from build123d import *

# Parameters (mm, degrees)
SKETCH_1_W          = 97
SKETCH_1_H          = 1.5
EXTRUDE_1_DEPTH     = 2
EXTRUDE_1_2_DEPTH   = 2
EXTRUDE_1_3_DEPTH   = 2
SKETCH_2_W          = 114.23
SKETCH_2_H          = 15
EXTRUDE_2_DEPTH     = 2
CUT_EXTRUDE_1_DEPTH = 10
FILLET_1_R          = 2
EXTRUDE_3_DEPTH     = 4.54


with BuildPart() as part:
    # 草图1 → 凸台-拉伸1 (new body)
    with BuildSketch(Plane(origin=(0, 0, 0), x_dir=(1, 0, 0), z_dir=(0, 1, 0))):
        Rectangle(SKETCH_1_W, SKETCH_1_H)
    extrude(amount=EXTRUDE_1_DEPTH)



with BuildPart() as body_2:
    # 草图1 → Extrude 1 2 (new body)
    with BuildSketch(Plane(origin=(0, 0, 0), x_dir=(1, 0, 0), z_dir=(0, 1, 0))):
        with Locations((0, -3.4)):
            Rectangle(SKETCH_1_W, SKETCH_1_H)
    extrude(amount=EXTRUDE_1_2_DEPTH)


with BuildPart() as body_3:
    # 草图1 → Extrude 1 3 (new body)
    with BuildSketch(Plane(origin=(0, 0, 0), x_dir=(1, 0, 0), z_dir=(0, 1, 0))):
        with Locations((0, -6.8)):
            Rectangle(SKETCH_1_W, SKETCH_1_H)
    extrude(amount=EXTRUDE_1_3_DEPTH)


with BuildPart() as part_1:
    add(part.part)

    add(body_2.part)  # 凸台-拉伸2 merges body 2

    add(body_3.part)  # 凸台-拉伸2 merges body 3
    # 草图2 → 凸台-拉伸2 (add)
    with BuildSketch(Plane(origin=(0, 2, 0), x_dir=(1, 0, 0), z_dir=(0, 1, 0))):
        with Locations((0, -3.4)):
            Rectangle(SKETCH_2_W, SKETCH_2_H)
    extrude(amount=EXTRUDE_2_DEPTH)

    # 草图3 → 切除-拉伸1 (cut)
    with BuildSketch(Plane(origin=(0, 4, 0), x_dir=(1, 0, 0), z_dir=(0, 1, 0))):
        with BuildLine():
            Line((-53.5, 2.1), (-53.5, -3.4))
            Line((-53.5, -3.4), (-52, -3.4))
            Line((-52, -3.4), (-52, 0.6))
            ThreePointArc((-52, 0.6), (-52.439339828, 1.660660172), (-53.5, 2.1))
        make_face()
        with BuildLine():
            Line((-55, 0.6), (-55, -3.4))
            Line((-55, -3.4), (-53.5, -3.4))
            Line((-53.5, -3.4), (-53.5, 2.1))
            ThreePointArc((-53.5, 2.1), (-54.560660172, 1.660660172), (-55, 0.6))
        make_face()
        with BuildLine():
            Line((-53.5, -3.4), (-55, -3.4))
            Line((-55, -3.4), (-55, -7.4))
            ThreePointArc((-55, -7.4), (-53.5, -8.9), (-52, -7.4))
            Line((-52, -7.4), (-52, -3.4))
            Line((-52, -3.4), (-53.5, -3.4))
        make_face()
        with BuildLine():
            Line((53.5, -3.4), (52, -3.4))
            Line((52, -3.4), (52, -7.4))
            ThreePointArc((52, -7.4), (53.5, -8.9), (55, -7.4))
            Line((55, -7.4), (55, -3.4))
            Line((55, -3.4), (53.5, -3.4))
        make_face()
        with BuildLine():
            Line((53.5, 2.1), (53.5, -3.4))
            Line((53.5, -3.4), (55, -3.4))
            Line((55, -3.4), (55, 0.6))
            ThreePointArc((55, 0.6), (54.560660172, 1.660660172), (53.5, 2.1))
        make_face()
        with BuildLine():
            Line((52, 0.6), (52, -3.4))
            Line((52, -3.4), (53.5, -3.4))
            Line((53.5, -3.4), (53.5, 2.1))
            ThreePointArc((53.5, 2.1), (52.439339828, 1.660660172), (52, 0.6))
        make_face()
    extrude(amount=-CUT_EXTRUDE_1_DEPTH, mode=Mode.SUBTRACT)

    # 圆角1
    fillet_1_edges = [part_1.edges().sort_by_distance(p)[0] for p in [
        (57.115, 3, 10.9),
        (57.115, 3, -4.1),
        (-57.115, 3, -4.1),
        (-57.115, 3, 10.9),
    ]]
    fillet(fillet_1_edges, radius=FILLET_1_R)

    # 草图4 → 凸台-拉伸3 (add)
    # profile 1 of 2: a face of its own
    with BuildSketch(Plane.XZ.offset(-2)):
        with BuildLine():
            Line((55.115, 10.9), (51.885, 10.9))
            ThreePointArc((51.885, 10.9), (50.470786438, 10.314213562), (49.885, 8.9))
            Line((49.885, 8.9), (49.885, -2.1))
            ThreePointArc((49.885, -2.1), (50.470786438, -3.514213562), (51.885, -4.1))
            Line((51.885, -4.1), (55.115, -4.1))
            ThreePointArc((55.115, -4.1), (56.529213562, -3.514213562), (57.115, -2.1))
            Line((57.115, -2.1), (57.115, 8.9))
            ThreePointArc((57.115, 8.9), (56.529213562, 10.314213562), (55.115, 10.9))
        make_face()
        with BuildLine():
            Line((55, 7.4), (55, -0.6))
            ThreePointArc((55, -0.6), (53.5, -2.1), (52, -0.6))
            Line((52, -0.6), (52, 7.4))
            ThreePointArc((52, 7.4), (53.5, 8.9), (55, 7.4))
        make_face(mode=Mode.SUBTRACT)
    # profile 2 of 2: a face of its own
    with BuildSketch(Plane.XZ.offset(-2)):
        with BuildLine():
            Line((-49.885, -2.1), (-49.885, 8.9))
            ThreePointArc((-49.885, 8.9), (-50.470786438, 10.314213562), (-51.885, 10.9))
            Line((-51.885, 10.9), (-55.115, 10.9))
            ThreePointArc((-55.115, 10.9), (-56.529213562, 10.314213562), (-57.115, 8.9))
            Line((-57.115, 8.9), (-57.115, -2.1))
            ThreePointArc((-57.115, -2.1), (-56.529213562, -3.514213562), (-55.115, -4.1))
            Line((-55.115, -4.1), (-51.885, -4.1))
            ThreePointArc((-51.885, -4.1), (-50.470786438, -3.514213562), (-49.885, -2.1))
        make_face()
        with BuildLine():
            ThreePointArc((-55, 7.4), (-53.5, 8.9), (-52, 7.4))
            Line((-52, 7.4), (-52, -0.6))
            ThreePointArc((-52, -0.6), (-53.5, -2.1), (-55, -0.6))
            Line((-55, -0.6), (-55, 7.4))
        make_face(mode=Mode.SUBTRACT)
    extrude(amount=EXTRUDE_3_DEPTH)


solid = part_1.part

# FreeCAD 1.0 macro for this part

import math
import FreeCAD as App
import Part
import Sketcher


def edges_at(feature, points):
    """Names of the edges that pass closest to the given points."""
    edges = feature.Shape.Edges
    near = lambda p: min(range(len(edges)), key=lambda i: edges[i].distToShape(Part.Vertex(*p))[0])
    return sorted({f"Edge{near(p) + 1}" for p in points})


def add_polygon(sketch, points):
    """Adds a closed chain of lines whose ends are joined by coincident constraints."""
    first, n = sketch.GeometryCount, len(points)
    for a, b in zip(points, points[1:] + points[:1]):
        sketch.addGeometry(Part.LineSegment(App.Vector(*a, 0), App.Vector(*b, 0)), False)
    for i in range(n):
        sketch.addConstraint(Sketcher.Constraint("Coincident", first + i, 2, first + (i + 1) % n, 1))

doc = App.newDocument("Part")
params = doc.addObject("Spreadsheet::Sheet", "Params")
for row, (alias, value) in enumerate([
    ("sketch1_width", "97 mm"),
    ("sketch1_height", "1.5 mm"),
    ("pad1_length", "2 mm"),
    ("sketch2_width", "97 mm"),
    ("sketch2_height", "1.5 mm"),
    ("pad2_length", "2 mm"),
    ("sketch3_width", "97 mm"),
    ("sketch3_height", "1.5 mm"),
    ("pad3_length", "2 mm"),
    ("sketch4_height", "15 mm"),
    ("sketch4_width", "114.23 mm"),
    ("pad4_length", "2 mm"),
    ("sketch5_radius", "1.5 mm"),
    ("sketch5_height", "8 mm"),
    ("pocket1_length", "10 mm"),
    ("fillet_radius", "2 mm"),
    ("sketch6_radius", "2 mm"),
    ("sketch6_radius2", "1.5 mm"),
    ("sketch6_height", "11 mm"),
    ("sketch6_height2", "8 mm"),
    ("sketch6_width", "3.23 mm"),
    ("pad5_length", "4.54 mm"),
], start=1):
    params.set(f"A{row}", alias)
    params.set(f"B{row}", "=" + value)
    params.setAlias(f"B{row}", alias)

body = doc.addObject("PartDesign::Body", "Body")

# Sketch on XZ plane
sketch1 = doc.addObject("Sketcher::SketchObject", "Sketch")
body.addObject(sketch1)
sketch1.AttachmentSupport = (doc.XZ_Plane, [""])
sketch1.MapMode = "FlatFace"
add_polygon(sketch1, [(-48.5, -0.8), (-48.5, 0.8), (48.5, 0.8), (48.5, -0.8)])  # lines 0-3
sketch1.addConstraint([
    Sketcher.Constraint("Vertical", 0),
    Sketcher.Constraint("Horizontal", 1),
    Sketcher.Constraint("Vertical", 2),
    Sketcher.Constraint("Horizontal", 3),
    Sketcher.Constraint("Symmetric", 0, 2, 2, 2, -1, 1),
    Sketcher.Constraint("DistanceX", 1, 1, 1, 2, 97.0),
    Sketcher.Constraint("DistanceY", 0, 1, 0, 2, 1.5),
])
sketch1.setExpression("Constraints[9]", "Params.sketch1_width")
sketch1.setExpression("Constraints[10]", "Params.sketch1_height")
pad1 = doc.addObject("PartDesign::Pad", "Pad")
body.addObject(pad1)
pad1.Profile = sketch1
pad1.setExpression("Length", "Params.pad1_length")
pad1.Reversed = True
body2 = doc.addObject("PartDesign::Body", "Body001")

# Sketch on XZ plane
sketch2 = doc.addObject("Sketcher::SketchObject", "Sketch001")
body2.addObject(sketch2)
sketch2.AttachmentSupport = (doc.getObject("XZ_Plane001"), [""])
sketch2.MapMode = "FlatFace"
add_polygon(sketch2, [(-48.5, 2.6), (-48.5, 4.2), (48.5, 4.2), (48.5, 2.6)])  # lines 0-3
sketch2.addConstraint([
    Sketcher.Constraint("Vertical", 0),
    Sketcher.Constraint("Horizontal", 1),
    Sketcher.Constraint("Vertical", 2),
    Sketcher.Constraint("Horizontal", 3),
    Sketcher.Constraint("DistanceX", 1, 1, 1, 2, 97.0),
    Sketcher.Constraint("DistanceY", 0, 1, 0, 2, 1.5),
    Sketcher.Constraint("DistanceX", 0, 2, -1, 1, 48.5),
    Sketcher.Constraint("DistanceY", -1, 1, 0, 2, 4.15),
])
sketch2.setExpression("Constraints[8]", "Params.sketch2_width")
sketch2.setExpression("Constraints[9]", "Params.sketch2_height")
pad2 = doc.addObject("PartDesign::Pad", "Pad001")
body2.addObject(pad2)
pad2.Profile = sketch2
pad2.setExpression("Length", "Params.pad2_length")
pad2.Reversed = True
body3 = doc.addObject("PartDesign::Body", "Body002")

# Sketch on XZ plane
sketch3 = doc.addObject("Sketcher::SketchObject", "Sketch002")
body3.addObject(sketch3)
sketch3.AttachmentSupport = (doc.getObject("XZ_Plane002"), [""])
sketch3.MapMode = "FlatFace"
add_polygon(sketch3, [(-48.5, 6), (-48.5, 7.5), (48.5, 7.5), (48.5, 6)])  # lines 0-3
sketch3.addConstraint([
    Sketcher.Constraint("Vertical", 0),
    Sketcher.Constraint("Horizontal", 1),
    Sketcher.Constraint("Vertical", 2),
    Sketcher.Constraint("Horizontal", 3),
    Sketcher.Constraint("DistanceX", 1, 1, 1, 2, 97.0),
    Sketcher.Constraint("DistanceY", 0, 1, 0, 2, 1.5),
    Sketcher.Constraint("DistanceX", 0, 2, -1, 1, 48.5),
    Sketcher.Constraint("DistanceY", -1, 1, 0, 2, 7.55),
])
sketch3.setExpression("Constraints[8]", "Params.sketch3_width")
sketch3.setExpression("Constraints[9]", "Params.sketch3_height")
pad3 = doc.addObject("PartDesign::Pad", "Pad002")
body3.addObject(pad3)
pad3.Profile = sketch3
pad3.setExpression("Length", "Params.pad3_length")
pad3.Reversed = True
body.AllowCompound = True
doc.recompute()

boolean = doc.addObject("PartDesign::Boolean", "Boolean")
body.addObject(boolean)
boolean.Type = "Fuse"
boolean.addObjects([body2])
doc.recompute()

boolean2 = doc.addObject("PartDesign::Boolean", "Boolean001")
body.addObject(boolean2)
boolean2.Type = "Fuse"
boolean2.addObjects([body3])

# Sketch on XZ plane
sketch4 = doc.addObject("Sketcher::SketchObject", "Sketch003")
body.addObject(sketch4)
sketch4.AttachmentSupport = (doc.XZ_Plane, [""])
sketch4.MapMode = "FlatFace"
sketch4.AttachmentOffset = App.Placement(App.Vector(0, 0, -2), App.Rotation())
add_polygon(sketch4, [(-57, -4), (-57, 11), (57, 11), (57, -4)])  # lines 0-3
sketch4.addConstraint([
    Sketcher.Constraint("Vertical", 0),
    Sketcher.Constraint("Horizontal", 1),
    Sketcher.Constraint("Vertical", 2),
    Sketcher.Constraint("Horizontal", 3),
    Sketcher.Constraint("DistanceY", 0, 1, 0, 2, 15.0),
    Sketcher.Constraint("DistanceX", 1, 1, 1, 2, 114.23),
    Sketcher.Constraint("DistanceY", -1, 1, 0, 2, 10.9),
    Sketcher.Constraint("DistanceX", 0, 2, -1, 1, 57.115),
])
sketch4.setExpression("Constraints[8]", "Params.sketch4_height")
sketch4.setExpression("Constraints[9]", "Params.sketch4_width")
pad4 = doc.addObject("PartDesign::Pad", "Pad003")
body.addObject(pad4)
pad4.Profile = sketch4
pad4.setExpression("Length", "Params.pad4_length")
pad4.Reversed = True

# Sketch on XZ plane
sketch5 = doc.addObject("Sketcher::SketchObject", "Sketch004")
body.addObject(sketch5)
sketch5.AttachmentSupport = (doc.XZ_Plane, [""])
sketch5.MapMode = "FlatFace"
sketch5.AttachmentOffset = App.Placement(App.Vector(0, 0, -4), App.Rotation())
sketch5.addGeometry([
    Part.ArcOfCircle(Part.Circle(App.Vector(-53.5, -0.6, 0), App.Vector(0, 0, 1), 1.5), math.radians(-90), math.radians(0)),  # 0
    Part.ArcOfCircle(Part.Circle(App.Vector(-53.5, -0.6, 0), App.Vector(0, 0, 1), 1.5), math.radians(180), math.radians(270)),  # 1
    Part.LineSegment(App.Vector(-55, -0.6, 0), App.Vector(-55, 7.4, 0)),  # 2
    Part.ArcOfCircle(Part.Circle(App.Vector(-53.5, 7.4, 0), App.Vector(0, 0, 1), 1.5), math.radians(0), math.radians(180)),  # 3
    Part.LineSegment(App.Vector(-52, 7.4, 0), App.Vector(-52, -0.6, 0)),  # 4
    Part.ArcOfCircle(Part.Circle(App.Vector(53.5, 7.4, 0), App.Vector(0, 0, 1), 1.5), math.radians(0), math.radians(180)),  # 5
    Part.LineSegment(App.Vector(55, 7.4, 0), App.Vector(55, -0.6, 0)),  # 6
    Part.ArcOfCircle(Part.Circle(App.Vector(53.5, -0.6, 0), App.Vector(0, 0, 1), 1.5), math.radians(-90), math.radians(0)),  # 7
    Part.ArcOfCircle(Part.Circle(App.Vector(53.5, -0.6, 0), App.Vector(0, 0, 1), 1.5), math.radians(180), math.radians(270)),  # 8
    Part.LineSegment(App.Vector(52, -0.6, 0), App.Vector(52, 7.4, 0)),  # 9
], False)
sketch5.addConstraint([
    Sketcher.Constraint("Tangent", 0, 1, 1, 2),
    Sketcher.Constraint("Tangent", 1, 1, 2, 1),
    Sketcher.Constraint("Tangent", 2, 2, 3, 2),
    Sketcher.Constraint("Tangent", 3, 1, 4, 1),
    Sketcher.Constraint("Tangent", 4, 2, 0, 2),
    Sketcher.Constraint("Tangent", 5, 1, 6, 1),
    Sketcher.Constraint("Tangent", 6, 2, 7, 2),
    Sketcher.Constraint("Tangent", 7, 1, 8, 2),
    Sketcher.Constraint("Tangent", 8, 1, 9, 1),
    Sketcher.Constraint("Tangent", 9, 2, 5, 2),
    Sketcher.Constraint("Vertical", 2),
    Sketcher.Constraint("Vertical", 4),
    Sketcher.Constraint("Vertical", 6),
    Sketcher.Constraint("Vertical", 9),
    Sketcher.Constraint("Equal", 0, 1),
    Sketcher.Constraint("Equal", 3, 5),
    Sketcher.Constraint("Equal", 5, 7),
    Sketcher.Constraint("Symmetric", 3, 3, 5, 3, -2),
    Sketcher.Constraint("Symmetric", 0, 1, 7, 1, -2),
    Sketcher.Constraint("Vertical", 3, 3, 0, 1),
    Sketcher.Constraint("Radius", 0, 1.5),
    Sketcher.Constraint("DistanceY", 2, 1, 2, 2, 8.0),
    Sketcher.Constraint("DistanceX", 1, 1, -1, 1, 55.0),
    Sketcher.Constraint("DistanceY", 0, 3, -1, 1, 0.6),
])
sketch5.setExpression("Constraints[20]", "Params.sketch5_radius")
sketch5.setExpression("Constraints[21]", "Params.sketch5_height")
pocket1 = doc.addObject("PartDesign::Pocket", "Pocket")
body.addObject(pocket1)
pocket1.Profile = sketch5
pocket1.setExpression("Length", "Params.pocket1_length")
pocket1.Reversed = True
doc.recompute()

fillet = doc.addObject("PartDesign::Fillet", "Fillet")
body.addObject(fillet)
fillet.Base = (pocket1, edges_at(pocket1, [
    (57.115, 3, 10.9),
    (57.115, 3, -4.1),
    (-57.115, 3, -4.1),
    (-57.115, 3, 10.9),
]))
fillet.setExpression("Radius", "Params.fillet_radius")

# Sketch on XZ plane
sketch6 = doc.addObject("Sketcher::SketchObject", "Sketch005")
body.addObject(sketch6)
sketch6.AttachmentSupport = (doc.XZ_Plane, [""])
sketch6.MapMode = "FlatFace"
sketch6.AttachmentOffset = App.Placement(App.Vector(0, 0, -2), App.Rotation())
sketch6.addGeometry([
    Part.LineSegment(App.Vector(55.1, 10.9, 0), App.Vector(51.9, 10.9, 0)),  # 0
    Part.ArcOfCircle(Part.Circle(App.Vector(51.9, 8.9, 0), App.Vector(0, 0, 1), 2), math.radians(90), math.radians(180)),  # 1
    Part.LineSegment(App.Vector(49.9, 8.9, 0), App.Vector(49.9, -2.1, 0)),  # 2
    Part.ArcOfCircle(Part.Circle(App.Vector(51.9, -2.1, 0), App.Vector(0, 0, 1), 2), math.radians(-180), math.radians(-90)),  # 3
    Part.LineSegment(App.Vector(51.9, -4.1, 0), App.Vector(55.1, -4.1, 0)),  # 4
    Part.ArcOfCircle(Part.Circle(App.Vector(55.1, -2.1, 0), App.Vector(0, 0, 1), 2), math.radians(-90), math.radians(0)),  # 5
    Part.LineSegment(App.Vector(57.1, -2.1, 0), App.Vector(57.1, 8.9, 0)),  # 6
    Part.ArcOfCircle(Part.Circle(App.Vector(55.1, 8.9, 0), App.Vector(0, 0, 1), 2), math.radians(0), math.radians(90)),  # 7
    Part.ArcOfCircle(Part.Circle(App.Vector(53.5, 7.4, 0), App.Vector(0, 0, 1), 1.5), math.radians(0), math.radians(180)),  # 8
    Part.LineSegment(App.Vector(55, 7.4, 0), App.Vector(55, -0.6, 0)),  # 9
    Part.ArcOfCircle(Part.Circle(App.Vector(53.5, -0.6, 0), App.Vector(0, 0, 1), 1.5), math.radians(180), math.radians(360)),  # 10
    Part.LineSegment(App.Vector(52, -0.6, 0), App.Vector(52, 7.4, 0)),  # 11
    Part.LineSegment(App.Vector(-49.9, -2.1, 0), App.Vector(-49.9, 8.9, 0)),  # 12
    Part.ArcOfCircle(Part.Circle(App.Vector(-51.9, 8.9, 0), App.Vector(0, 0, 1), 2), math.radians(0), math.radians(90)),  # 13
    Part.LineSegment(App.Vector(-51.9, 10.9, 0), App.Vector(-55.1, 10.9, 0)),  # 14
    Part.ArcOfCircle(Part.Circle(App.Vector(-55.1, 8.9, 0), App.Vector(0, 0, 1), 2), math.radians(90), math.radians(180)),  # 15
    Part.LineSegment(App.Vector(-57.1, 8.9, 0), App.Vector(-57.1, -2.1, 0)),  # 16
    Part.ArcOfCircle(Part.Circle(App.Vector(-55.1, -2.1, 0), App.Vector(0, 0, 1), 2), math.radians(-180), math.radians(-90)),  # 17
    Part.LineSegment(App.Vector(-55.1, -4.1, 0), App.Vector(-51.9, -4.1, 0)),  # 18
    Part.ArcOfCircle(Part.Circle(App.Vector(-51.9, -2.1, 0), App.Vector(0, 0, 1), 2), math.radians(-90), math.radians(0)),  # 19
    Part.LineSegment(App.Vector(-55, -0.6, 0), App.Vector(-55, 7.4, 0)),  # 20
    Part.ArcOfCircle(Part.Circle(App.Vector(-53.5, 7.4, 0), App.Vector(0, 0, 1), 1.5), math.radians(0), math.radians(180)),  # 21
    Part.LineSegment(App.Vector(-52, 7.4, 0), App.Vector(-52, -0.6, 0)),  # 22
    Part.ArcOfCircle(Part.Circle(App.Vector(-53.5, -0.6, 0), App.Vector(0, 0, 1), 1.5), math.radians(180), math.radians(360)),  # 23
], False)
sketch6.addConstraint([
    Sketcher.Constraint("Tangent", 0, 2, 1, 1),
    Sketcher.Constraint("Tangent", 1, 2, 2, 1),
    Sketcher.Constraint("Tangent", 2, 2, 3, 1),
    Sketcher.Constraint("Tangent", 3, 2, 4, 1),
    Sketcher.Constraint("Tangent", 4, 2, 5, 1),
    Sketcher.Constraint("Tangent", 5, 2, 6, 1),
    Sketcher.Constraint("Tangent", 6, 2, 7, 1),
    Sketcher.Constraint("Tangent", 7, 2, 0, 1),
    Sketcher.Constraint("Tangent", 8, 1, 9, 1),
    Sketcher.Constraint("Tangent", 9, 2, 10, 2),
    Sketcher.Constraint("Tangent", 10, 1, 11, 1),
    Sketcher.Constraint("Tangent", 11, 2, 8, 2),
    Sketcher.Constraint("Tangent", 12, 2, 13, 1),
    Sketcher.Constraint("Tangent", 13, 2, 14, 1),
    Sketcher.Constraint("Tangent", 14, 2, 15, 1),
    Sketcher.Constraint("Tangent", 15, 2, 16, 1),
    Sketcher.Constraint("Tangent", 16, 2, 17, 1),
    Sketcher.Constraint("Tangent", 17, 2, 18, 1),
    Sketcher.Constraint("Tangent", 18, 2, 19, 1),
    Sketcher.Constraint("Tangent", 19, 2, 12, 1),
    Sketcher.Constraint("Tangent", 20, 2, 21, 2),
    Sketcher.Constraint("Tangent", 21, 1, 22, 1),
    Sketcher.Constraint("Tangent", 22, 2, 23, 2),
    Sketcher.Constraint("Tangent", 23, 1, 20, 1),
    Sketcher.Constraint("Horizontal", 0),
    Sketcher.Constraint("Vertical", 2),
    Sketcher.Constraint("Horizontal", 4),
    Sketcher.Constraint("Vertical", 6),
    Sketcher.Constraint("Vertical", 9),
    Sketcher.Constraint("Vertical", 11),
    Sketcher.Constraint("Vertical", 12),
    Sketcher.Constraint("Horizontal", 14),
    Sketcher.Constraint("Vertical", 16),
    Sketcher.Constraint("Horizontal", 18),
    Sketcher.Constraint("Vertical", 20),
    Sketcher.Constraint("Vertical", 22),
    Sketcher.Constraint("Equal", 1, 3),
    Sketcher.Constraint("Equal", 3, 5),
    Sketcher.Constraint("Equal", 5, 7),
    Sketcher.Constraint("Equal", 7, 13),
    Sketcher.Constraint("Equal", 13, 15),
    Sketcher.Constraint("Equal", 15, 17),
    Sketcher.Constraint("Equal", 17, 19),
    Sketcher.Constraint("Equal", 10, 21),
    Sketcher.Constraint("Symmetric", 1, 3, 13, 3, -2),
    Sketcher.Constraint("Symmetric", 5, 3, 17, 3, -2),
    Sketcher.Constraint("Symmetric", 8, 3, 21, 3, -2),
    Sketcher.Constraint("Horizontal", 10, 3, 23, 3),
    Sketcher.Constraint("Radius", 1, 2.0),
    Sketcher.Constraint("Radius", 8, 1.5),
    Sketcher.Constraint("DistanceY", 2, 2, 2, 1, 11.0),
    Sketcher.Constraint("DistanceY", 9, 2, 9, 1, 8.0),
    Sketcher.Constraint("DistanceX", -1, 1, 8, 1, 55.0),
    Sketcher.Constraint("DistanceX", 13, 3, 7, 3, 107.0),
    Sketcher.Constraint("DistanceX", 0, 2, 0, 1, 3.23),
    Sketcher.Constraint("DistanceY", -1, 1, 1, 3, 8.9),
    Sketcher.Constraint("DistanceY", -1, 1, 8, 3, 7.4),
])
sketch6.setExpression("Constraints[48]", "Params.sketch6_radius")
sketch6.setExpression("Constraints[49]", "Params.sketch6_radius2")
sketch6.setExpression("Constraints[50]", "Params.sketch6_height")
sketch6.setExpression("Constraints[51]", "Params.sketch6_height2")
sketch6.setExpression("Constraints[54]", "Params.sketch6_width")
pad5 = doc.addObject("PartDesign::Pad", "Pad004")
body.addObject(pad5)
pad5.Profile = sketch6
pad5.setExpression("Length", "Params.pad5_length")

doc.recompute()
